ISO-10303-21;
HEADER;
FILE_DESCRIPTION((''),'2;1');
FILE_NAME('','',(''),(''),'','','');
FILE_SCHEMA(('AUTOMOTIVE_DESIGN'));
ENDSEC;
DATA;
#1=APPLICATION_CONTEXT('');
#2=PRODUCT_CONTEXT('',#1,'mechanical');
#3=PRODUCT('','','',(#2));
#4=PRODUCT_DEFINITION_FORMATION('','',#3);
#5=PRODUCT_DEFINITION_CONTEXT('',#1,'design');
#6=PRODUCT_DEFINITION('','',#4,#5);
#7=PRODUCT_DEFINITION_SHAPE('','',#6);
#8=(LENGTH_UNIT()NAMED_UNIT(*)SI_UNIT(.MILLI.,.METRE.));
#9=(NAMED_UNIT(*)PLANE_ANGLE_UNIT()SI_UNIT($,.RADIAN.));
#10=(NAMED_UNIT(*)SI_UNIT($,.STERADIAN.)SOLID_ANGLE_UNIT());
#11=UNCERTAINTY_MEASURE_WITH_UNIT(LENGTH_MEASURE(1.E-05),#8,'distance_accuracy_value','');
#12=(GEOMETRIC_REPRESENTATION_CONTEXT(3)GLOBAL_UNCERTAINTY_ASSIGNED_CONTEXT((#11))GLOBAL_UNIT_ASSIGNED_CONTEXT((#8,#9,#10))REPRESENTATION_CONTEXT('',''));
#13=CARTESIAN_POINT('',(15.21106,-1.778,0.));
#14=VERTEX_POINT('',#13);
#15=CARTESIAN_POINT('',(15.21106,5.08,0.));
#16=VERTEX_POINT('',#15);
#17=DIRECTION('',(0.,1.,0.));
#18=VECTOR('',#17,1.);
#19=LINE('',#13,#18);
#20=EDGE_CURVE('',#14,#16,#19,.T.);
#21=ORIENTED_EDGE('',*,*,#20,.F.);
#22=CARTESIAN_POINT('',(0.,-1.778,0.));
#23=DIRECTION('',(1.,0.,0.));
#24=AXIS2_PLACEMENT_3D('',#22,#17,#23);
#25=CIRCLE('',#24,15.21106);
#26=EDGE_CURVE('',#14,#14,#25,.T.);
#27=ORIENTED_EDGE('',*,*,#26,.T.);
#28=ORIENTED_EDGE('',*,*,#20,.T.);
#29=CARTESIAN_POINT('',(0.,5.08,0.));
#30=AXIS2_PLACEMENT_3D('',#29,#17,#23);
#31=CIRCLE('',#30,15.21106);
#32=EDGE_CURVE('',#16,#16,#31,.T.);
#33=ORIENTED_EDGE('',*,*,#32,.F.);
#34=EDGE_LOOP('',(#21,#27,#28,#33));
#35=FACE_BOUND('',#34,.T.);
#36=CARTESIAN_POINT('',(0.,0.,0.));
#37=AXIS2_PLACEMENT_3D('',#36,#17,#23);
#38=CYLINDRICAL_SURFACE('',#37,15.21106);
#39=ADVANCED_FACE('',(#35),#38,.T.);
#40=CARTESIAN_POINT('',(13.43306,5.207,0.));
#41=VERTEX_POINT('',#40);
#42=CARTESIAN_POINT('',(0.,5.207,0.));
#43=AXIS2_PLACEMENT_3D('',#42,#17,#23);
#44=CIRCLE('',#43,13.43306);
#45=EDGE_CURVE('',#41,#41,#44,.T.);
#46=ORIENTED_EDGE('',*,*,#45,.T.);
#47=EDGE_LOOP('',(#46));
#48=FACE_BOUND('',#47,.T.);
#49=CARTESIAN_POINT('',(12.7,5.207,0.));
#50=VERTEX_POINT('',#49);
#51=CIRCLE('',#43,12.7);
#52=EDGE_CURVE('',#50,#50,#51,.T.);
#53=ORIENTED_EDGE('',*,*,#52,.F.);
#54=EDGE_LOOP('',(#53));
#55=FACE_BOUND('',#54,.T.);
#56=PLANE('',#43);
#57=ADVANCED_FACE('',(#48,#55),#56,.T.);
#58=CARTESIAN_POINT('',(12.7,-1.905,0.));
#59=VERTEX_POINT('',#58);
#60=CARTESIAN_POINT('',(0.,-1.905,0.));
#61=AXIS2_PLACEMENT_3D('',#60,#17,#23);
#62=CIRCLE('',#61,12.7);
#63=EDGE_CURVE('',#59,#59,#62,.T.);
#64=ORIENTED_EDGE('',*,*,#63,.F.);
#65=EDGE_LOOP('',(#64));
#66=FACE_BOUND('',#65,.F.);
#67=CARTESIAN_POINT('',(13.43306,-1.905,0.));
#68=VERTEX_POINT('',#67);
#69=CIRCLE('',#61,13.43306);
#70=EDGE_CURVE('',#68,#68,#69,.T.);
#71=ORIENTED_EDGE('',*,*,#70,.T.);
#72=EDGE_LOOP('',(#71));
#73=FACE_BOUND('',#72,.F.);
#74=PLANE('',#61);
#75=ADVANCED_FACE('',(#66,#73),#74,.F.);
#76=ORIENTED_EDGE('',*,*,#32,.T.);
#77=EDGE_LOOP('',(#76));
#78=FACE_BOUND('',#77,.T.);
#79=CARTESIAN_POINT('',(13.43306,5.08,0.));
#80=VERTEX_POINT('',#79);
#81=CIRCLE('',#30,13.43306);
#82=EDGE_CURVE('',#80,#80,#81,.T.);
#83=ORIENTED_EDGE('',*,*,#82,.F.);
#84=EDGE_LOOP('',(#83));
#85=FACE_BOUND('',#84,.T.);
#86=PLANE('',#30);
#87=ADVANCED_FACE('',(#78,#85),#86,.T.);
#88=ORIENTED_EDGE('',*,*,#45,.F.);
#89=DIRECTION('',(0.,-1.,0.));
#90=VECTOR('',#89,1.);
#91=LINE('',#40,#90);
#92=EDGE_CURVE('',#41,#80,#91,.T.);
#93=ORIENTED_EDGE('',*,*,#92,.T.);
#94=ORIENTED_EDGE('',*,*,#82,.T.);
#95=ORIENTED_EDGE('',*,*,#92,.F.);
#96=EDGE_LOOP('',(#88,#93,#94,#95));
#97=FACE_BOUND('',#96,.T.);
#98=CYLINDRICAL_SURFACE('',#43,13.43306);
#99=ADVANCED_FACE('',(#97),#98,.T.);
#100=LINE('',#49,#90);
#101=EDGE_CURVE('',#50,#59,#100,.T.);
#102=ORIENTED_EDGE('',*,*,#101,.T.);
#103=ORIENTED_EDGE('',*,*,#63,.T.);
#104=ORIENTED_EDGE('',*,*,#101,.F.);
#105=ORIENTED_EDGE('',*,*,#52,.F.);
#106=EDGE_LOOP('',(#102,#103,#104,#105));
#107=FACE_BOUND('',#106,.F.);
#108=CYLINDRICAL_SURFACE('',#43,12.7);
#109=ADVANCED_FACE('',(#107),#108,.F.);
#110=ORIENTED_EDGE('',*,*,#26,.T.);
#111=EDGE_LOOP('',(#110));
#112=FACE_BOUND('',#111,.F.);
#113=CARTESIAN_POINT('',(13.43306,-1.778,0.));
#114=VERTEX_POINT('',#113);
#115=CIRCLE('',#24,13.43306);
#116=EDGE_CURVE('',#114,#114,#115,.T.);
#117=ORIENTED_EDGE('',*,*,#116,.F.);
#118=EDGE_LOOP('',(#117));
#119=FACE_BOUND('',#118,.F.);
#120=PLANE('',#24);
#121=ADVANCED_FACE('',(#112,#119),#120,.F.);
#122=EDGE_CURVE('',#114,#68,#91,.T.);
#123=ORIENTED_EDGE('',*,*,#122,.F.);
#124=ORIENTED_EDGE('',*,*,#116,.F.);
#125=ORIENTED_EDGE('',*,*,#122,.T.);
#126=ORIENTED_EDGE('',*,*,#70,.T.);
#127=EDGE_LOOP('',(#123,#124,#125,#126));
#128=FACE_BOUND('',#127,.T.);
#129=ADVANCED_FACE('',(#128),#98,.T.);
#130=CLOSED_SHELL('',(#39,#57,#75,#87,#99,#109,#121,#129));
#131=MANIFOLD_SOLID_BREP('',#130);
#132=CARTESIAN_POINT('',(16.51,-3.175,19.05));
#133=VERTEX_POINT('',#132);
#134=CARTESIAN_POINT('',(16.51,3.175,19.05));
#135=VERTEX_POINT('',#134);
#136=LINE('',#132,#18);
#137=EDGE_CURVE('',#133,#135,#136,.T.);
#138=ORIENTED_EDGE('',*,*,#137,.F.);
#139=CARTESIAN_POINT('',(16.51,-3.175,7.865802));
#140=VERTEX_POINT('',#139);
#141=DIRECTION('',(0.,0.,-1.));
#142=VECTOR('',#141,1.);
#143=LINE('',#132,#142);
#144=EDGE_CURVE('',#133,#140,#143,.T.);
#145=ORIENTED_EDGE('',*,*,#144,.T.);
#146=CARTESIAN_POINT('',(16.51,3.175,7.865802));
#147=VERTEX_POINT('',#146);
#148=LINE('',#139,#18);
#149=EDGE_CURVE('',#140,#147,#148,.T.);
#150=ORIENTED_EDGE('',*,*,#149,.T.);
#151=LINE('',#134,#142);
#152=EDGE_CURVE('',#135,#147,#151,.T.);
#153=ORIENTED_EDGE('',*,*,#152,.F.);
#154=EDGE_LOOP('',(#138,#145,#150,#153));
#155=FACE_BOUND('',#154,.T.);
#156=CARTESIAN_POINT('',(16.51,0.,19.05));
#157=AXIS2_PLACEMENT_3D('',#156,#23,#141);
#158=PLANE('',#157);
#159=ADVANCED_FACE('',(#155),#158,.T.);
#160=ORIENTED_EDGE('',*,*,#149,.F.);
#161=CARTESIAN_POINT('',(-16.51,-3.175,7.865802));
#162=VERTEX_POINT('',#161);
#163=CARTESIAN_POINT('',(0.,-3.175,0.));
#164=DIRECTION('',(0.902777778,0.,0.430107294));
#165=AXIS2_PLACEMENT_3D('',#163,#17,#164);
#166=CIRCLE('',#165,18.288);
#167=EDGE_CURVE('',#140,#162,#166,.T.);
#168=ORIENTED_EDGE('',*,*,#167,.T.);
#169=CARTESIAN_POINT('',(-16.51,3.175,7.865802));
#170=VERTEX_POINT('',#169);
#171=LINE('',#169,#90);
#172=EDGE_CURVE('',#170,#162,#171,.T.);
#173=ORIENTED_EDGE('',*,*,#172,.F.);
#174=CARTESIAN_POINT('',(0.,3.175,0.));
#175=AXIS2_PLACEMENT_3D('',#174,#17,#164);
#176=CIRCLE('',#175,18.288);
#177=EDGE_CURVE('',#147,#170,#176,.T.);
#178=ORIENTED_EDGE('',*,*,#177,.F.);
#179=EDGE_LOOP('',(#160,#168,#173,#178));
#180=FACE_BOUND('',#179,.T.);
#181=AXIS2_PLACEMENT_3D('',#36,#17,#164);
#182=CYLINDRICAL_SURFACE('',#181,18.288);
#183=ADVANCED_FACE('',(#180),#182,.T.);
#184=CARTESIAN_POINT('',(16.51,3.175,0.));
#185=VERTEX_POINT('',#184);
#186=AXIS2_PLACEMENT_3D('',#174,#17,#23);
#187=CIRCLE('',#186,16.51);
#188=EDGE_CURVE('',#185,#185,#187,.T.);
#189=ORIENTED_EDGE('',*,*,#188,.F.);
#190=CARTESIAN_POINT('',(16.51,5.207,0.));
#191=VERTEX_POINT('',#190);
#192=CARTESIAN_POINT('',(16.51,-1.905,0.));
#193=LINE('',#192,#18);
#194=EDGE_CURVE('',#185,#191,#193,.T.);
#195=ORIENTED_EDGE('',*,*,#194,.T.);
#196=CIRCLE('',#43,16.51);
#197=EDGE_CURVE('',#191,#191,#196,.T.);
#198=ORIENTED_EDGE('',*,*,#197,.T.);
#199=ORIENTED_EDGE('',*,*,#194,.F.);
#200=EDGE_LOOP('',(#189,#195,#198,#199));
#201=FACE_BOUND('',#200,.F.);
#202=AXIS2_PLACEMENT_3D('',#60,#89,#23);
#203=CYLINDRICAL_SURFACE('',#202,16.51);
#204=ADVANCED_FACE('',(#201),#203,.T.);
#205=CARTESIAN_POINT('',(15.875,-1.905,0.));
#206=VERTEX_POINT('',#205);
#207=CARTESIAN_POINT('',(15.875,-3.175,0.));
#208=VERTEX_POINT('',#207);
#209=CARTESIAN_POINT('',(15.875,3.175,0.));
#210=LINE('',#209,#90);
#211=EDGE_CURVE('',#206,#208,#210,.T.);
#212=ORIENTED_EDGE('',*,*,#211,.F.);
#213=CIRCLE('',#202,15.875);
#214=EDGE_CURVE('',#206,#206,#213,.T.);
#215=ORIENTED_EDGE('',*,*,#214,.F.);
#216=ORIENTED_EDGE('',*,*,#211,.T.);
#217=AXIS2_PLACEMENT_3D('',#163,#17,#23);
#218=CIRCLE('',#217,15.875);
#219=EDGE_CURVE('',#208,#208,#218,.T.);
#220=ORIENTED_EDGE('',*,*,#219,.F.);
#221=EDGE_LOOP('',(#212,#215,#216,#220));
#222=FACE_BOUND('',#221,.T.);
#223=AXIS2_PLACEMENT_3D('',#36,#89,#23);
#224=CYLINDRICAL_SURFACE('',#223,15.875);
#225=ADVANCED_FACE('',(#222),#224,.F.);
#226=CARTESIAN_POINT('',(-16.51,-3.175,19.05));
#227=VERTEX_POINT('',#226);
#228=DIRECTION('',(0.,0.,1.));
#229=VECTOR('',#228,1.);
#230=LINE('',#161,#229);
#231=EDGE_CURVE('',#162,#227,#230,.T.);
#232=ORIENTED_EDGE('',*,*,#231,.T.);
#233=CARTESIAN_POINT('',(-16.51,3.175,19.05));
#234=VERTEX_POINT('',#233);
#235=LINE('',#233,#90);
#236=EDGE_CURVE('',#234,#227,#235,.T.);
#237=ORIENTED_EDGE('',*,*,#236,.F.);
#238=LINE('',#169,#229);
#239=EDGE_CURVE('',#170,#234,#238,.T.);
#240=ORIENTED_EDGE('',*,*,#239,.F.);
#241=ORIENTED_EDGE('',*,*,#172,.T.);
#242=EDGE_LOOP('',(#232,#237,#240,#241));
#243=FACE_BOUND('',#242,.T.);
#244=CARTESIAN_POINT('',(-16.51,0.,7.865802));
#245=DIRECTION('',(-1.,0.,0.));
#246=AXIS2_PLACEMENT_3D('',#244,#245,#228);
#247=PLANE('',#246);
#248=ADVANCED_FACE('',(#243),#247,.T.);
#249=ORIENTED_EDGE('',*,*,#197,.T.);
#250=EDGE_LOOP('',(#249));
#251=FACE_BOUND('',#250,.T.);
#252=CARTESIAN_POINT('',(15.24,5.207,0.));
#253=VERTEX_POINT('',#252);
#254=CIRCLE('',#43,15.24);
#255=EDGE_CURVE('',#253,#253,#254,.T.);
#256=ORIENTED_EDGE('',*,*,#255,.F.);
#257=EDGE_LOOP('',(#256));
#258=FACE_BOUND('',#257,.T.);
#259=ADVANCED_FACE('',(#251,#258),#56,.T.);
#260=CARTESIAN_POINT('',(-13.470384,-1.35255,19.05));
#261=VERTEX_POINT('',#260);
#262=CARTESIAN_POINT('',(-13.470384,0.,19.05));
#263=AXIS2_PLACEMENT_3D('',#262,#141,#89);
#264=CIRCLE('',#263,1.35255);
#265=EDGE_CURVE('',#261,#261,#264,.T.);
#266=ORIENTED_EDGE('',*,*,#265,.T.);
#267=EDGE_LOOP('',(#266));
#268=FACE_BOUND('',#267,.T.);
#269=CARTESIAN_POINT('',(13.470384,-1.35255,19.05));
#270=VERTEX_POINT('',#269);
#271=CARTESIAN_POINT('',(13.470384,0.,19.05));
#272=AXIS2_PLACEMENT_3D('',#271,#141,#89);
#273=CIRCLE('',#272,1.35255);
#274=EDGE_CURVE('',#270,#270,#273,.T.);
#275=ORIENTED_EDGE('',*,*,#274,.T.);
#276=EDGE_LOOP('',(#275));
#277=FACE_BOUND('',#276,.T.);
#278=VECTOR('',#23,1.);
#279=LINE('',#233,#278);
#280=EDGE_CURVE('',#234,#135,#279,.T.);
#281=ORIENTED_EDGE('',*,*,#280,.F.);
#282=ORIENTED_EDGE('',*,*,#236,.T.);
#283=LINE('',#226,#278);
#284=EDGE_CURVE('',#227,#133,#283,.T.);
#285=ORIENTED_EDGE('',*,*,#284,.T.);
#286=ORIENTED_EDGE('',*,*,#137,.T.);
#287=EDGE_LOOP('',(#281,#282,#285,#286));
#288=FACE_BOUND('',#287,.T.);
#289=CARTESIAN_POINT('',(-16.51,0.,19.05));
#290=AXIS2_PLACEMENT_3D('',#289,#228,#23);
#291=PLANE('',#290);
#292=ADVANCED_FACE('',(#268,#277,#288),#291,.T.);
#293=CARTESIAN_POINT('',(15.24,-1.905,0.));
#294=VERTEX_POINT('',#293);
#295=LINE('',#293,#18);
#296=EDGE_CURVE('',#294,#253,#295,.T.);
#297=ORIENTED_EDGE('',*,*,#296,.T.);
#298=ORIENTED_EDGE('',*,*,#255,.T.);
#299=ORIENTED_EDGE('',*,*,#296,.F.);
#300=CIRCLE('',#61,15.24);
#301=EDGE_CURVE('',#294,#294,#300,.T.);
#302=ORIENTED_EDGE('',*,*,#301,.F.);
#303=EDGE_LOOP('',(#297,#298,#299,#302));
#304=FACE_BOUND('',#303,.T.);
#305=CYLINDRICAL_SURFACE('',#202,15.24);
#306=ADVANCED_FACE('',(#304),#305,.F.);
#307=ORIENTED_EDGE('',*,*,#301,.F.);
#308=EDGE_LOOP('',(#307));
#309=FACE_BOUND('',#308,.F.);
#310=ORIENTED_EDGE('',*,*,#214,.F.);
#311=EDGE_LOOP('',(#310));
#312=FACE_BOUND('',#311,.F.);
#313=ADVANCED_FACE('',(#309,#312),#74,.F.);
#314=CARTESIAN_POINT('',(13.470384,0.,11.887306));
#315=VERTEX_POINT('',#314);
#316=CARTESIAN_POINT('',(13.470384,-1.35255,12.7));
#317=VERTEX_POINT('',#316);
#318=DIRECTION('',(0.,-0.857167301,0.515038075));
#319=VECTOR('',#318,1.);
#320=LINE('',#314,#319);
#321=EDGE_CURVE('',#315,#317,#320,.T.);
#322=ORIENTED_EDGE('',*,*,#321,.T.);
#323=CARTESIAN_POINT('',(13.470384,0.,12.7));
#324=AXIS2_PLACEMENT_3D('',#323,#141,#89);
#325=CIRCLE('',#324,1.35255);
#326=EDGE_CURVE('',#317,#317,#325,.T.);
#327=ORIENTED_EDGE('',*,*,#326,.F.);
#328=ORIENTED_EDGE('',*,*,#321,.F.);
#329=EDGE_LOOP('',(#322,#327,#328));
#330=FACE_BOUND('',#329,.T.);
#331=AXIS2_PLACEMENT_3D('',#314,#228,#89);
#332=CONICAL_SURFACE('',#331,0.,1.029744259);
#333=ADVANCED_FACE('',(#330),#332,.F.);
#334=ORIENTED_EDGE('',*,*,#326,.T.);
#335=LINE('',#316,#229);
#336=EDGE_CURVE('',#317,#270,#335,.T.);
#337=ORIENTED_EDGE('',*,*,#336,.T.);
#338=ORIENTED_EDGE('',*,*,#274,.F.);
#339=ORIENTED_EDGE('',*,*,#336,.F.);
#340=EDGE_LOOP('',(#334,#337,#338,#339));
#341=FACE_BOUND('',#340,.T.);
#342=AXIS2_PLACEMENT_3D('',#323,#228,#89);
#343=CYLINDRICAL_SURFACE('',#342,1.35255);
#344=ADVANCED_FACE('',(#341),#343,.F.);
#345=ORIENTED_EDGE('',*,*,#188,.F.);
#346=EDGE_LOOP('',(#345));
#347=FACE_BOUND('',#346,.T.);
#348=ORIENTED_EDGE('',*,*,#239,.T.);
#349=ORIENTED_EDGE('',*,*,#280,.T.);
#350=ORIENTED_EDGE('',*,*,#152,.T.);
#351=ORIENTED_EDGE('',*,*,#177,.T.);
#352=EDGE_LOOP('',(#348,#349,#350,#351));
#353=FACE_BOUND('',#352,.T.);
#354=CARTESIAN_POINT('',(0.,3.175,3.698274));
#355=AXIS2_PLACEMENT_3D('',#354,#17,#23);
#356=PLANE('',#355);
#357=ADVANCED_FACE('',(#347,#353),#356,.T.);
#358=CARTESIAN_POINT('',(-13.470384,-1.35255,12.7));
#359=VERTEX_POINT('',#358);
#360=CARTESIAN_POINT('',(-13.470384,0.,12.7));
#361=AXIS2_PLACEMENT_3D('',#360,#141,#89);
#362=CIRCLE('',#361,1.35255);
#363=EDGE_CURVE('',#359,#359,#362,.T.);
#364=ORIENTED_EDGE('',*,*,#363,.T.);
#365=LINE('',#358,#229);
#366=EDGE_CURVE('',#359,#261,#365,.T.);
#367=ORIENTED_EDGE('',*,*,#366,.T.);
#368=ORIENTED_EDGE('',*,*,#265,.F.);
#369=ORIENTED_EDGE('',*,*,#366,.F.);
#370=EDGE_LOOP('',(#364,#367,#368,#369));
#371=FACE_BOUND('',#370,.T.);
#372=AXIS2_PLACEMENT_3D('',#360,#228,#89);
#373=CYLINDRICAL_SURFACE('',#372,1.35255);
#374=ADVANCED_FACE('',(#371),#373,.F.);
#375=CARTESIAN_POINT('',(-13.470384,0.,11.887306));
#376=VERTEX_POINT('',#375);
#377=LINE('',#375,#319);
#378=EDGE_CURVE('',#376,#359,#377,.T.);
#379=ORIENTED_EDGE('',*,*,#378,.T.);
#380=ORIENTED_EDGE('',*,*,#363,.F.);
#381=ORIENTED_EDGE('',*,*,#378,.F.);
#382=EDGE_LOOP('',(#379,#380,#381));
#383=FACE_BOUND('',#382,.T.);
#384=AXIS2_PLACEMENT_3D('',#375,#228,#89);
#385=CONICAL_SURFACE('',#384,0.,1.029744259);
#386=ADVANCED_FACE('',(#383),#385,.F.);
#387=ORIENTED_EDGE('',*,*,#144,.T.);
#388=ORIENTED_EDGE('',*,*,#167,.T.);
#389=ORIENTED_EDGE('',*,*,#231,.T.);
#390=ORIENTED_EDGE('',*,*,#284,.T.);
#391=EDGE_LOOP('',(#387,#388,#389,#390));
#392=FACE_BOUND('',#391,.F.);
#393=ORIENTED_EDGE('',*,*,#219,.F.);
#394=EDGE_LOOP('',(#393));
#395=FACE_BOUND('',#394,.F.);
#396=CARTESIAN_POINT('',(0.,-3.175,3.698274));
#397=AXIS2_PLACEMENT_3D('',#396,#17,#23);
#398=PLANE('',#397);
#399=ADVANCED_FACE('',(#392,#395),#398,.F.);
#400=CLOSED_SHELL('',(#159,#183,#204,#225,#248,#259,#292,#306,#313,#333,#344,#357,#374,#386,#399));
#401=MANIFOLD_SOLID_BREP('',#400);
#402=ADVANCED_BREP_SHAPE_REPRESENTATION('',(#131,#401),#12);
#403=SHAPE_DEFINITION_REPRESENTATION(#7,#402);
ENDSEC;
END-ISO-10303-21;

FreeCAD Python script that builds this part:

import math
import FreeCAD as App
import Part
import Sketcher

V = App.Vector
Q = App.Units.Quantity

doc = App.newDocument("Part")
body = doc.addObject("PartDesign::Body", "Body")

# Sketch on XZ plane
sketch1 = body.newObject("Sketcher::SketchObject", "Sketch")
sketch1.AttachmentSupport = (doc.getObject("XZ_Plane"), [""])
sketch1.MapMode = "FlatFace"
sketch1.addGeometry([
    Part.LineSegment(V(-17, 19, 0), V(17, 19, 0)),  # 0
    Part.LineSegment(V(17, 19, 0), V(17, 8, 0)),  # 1
    Part.ArcOfCircle(Part.Circle(V(0, 0, 0), V(0, 0, 1), 18), math.radians(155), math.radians(385)),  # 2
    Part.LineSegment(V(-17, 8, 0), V(-17, 19, 0)),  # 3
    Part.Circle(V(0, 0, 0), V(0, 0, 1), 16),  # 4
], False)
sketch1.addConstraint([
    Sketcher.Constraint("Coincident", 0, 2, 1, 1),
    Sketcher.Constraint("Coincident", 1, 2, 2, 2),
    Sketcher.Constraint("Coincident", 2, 1, 3, 1),
    Sketcher.Constraint("Coincident", 3, 2, 0, 1),
    Sketcher.Constraint("Horizontal", 0),
    Sketcher.Constraint("Vertical", 1),
    Sketcher.Constraint("Vertical", 3),
    Sketcher.Constraint("Coincident", 2, 3, -1, 1),
    Sketcher.Constraint("Coincident", 4, 3, -1, 1),
    Sketcher.Constraint("Horizontal", 1, 2, 2, 1),
    Sketcher.Constraint("Diameter", 4, Q("1.25 in")),
    Sketcher.Constraint("Radius", 2, Q("0.72 in")),
    Sketcher.Constraint("DistanceX", 0, 1, 0, 2, Q("1.3 in")),
    Sketcher.Constraint("DistanceY", -1, 1, 0, 2, Q("0.75 in")),
])
pad1 = body.newObject("PartDesign::Pad", "Pad")
pad1.Profile = sketch1
pad1.Length = Q("0.25 in")
pad1.Midplane = True

# Sketch on XZ plane
sketch2 = body.newObject("Sketcher::SketchObject", "Sketch001")
sketch2.AttachmentSupport = (doc.getObject("XZ_Plane"), [""])
sketch2.MapMode = "FlatFace"
sketch2.AttachmentOffset = App.Placement(V(0, 0, -0.125 * 25.4), App.Rotation())
sketch2.addGeometry(Part.Circle(V(0, 0, 0), V(0, 0, 1), 17), False)
sketch2.addConstraint([
    Sketcher.Constraint("Coincident", 0, 3, -1, 1),
    Sketcher.Constraint("Diameter", 0, Q("1.3 in")),
])
pocket1 = body.newObject("PartDesign::Pocket", "Pocket")
pocket1.Profile = sketch2
pocket1.Length = Q("0.2 in")
pocket1.Reversed = True

# Sketch on XZ plane
sketch3 = body.newObject("Sketcher::SketchObject", "Sketch002")
sketch3.AttachmentSupport = (doc.getObject("XZ_Plane"), [""])
sketch3.MapMode = "FlatFace"
sketch3.AttachmentOffset = App.Placement(V(0, 0, 0.075 * 25.4), App.Rotation())
sketch3.addGeometry([
    Part.Circle(V(0, 0, 0), V(0, 0, 1), 17),
    Part.Circle(V(0, 0, 0), V(0, 0, 1), 15),
], False)
sketch3.addConstraint([
    Sketcher.Constraint("Coincident", 0, 3, -1, 1),
    Sketcher.Constraint("Coincident", 1, 3, -1, 1),
    Sketcher.Constraint("Diameter", 0, Q("1.3 in")),
    Sketcher.Constraint("Diameter", 1, Q("1.2 in")),
])
pad2 = body.newObject("PartDesign::Pad", "Pad001")
pad2.Profile = sketch3
pad2.Length = Q("0.28 in")
pad2.Reversed = True

# Sketch on YZ plane
sketch4 = body.newObject("Sketcher::SketchObject", "Sketch003")
sketch4.AttachmentSupport = (doc.getObject("YZ_Plane"), [""])
sketch4.MapMode = "FlatFace"
sketch4.AttachmentOffset = App.Placement(V(0, 0, 13.470384), App.Rotation())
sketch4.addGeometry([
    Part.LineSegment(V(0, 11.9, 0), V(0, 19.1, 0)),
    Part.LineSegment(V(0, 19.1, 0), V(-1.4, 19.1, 0)),
    Part.LineSegment(V(-1.4, 19.1, 0), V(-1.4, 12.7, 0)),
    Part.LineSegment(V(-1.4, 12.7, 0), V(0, 11.9, 0)),
], False)
sketch4.addConstraint([
    Sketcher.Constraint("Coincident", 0, 2, 1, 1),
    Sketcher.Constraint("Coincident", 1, 2, 2, 1),
    Sketcher.Constraint("Coincident", 2, 2, 3, 1),
    Sketcher.Constraint("Coincident", 3, 2, 0, 1),
    Sketcher.Constraint("Vertical", 0),
    Sketcher.Constraint("Horizontal", 1),
    Sketcher.Constraint("Vertical", 2),
    Sketcher.Constraint("PointOnObject", 0, 2, -2),
    Sketcher.Constraint("Angle", 3, Q("-31 deg")),
    Sketcher.Constraint("DistanceY", 2, 2, 2, 1, Q("0.25 in")),
    Sketcher.Constraint("DistanceY", -1, 1, 2, 2, Q("0.5 in")),
    Sketcher.Constraint("DistanceX", 1, 2, 1, 1, 1.35255),
])
groove = body.newObject("PartDesign::Groove", "Groove")
groove.Profile = sketch4
groove.ReferenceAxis = (sketch4, ["V_Axis"])
groove.Angle = 360
doc.recompute()

linearpattern = body.newObject("PartDesign::LinearPattern", "LinearPattern")
linearpattern.Originals = [groove]
linearpattern.Direction = (doc.getObject("X_Axis"), [""])
linearpattern.Mode = "offset"
linearpattern.Offset = 26.940768
linearpattern.Occurrences = 2
linearpattern.Reversed = True
body.Tip = linearpattern
body2 = doc.addObject("PartDesign::Body", "Body001")

# Sketch on XZ plane
sketch5 = body2.newObject("Sketcher::SketchObject", "Sketch004")
sketch5.AttachmentSupport = (doc.getObject("XZ_Plane001"), [""])
sketch5.MapMode = "FlatFace"
sketch5.addGeometry([
    Part.Circle(V(0, 0, 0), V(0, 0, 1), 15),
    Part.Circle(V(0, 0, 0), V(0, 0, 1), 13),
], False)
sketch5.addConstraint([
    Sketcher.Constraint("Coincident", 0, 3, -1, 1),
    Sketcher.Constraint("Coincident", 1, 3, -1, 1),
    Sketcher.Constraint("Diameter", 0, 30.422119),
    Sketcher.Constraint("Diameter", 1, 26.866119),
])
pad3 = body2.newObject("PartDesign::Pad", "Pad002")
pad3.Profile = sketch5
pad3.Type = "TwoLengths"
pad3.Length = Q("0.2 in")
pad3.Length2 = Q("0.07 in")
pad3.Reversed = True

# Sketch on XZ plane
sketch6 = body2.newObject("Sketcher::SketchObject", "Sketch005")
sketch6.AttachmentSupport = (doc.getObject("XZ_Plane001"), [""])
sketch6.MapMode = "FlatFace"
sketch6.AttachmentOffset = App.Placement(V(0, 0, -0.205 * 25.4), App.Rotation())
sketch6.addGeometry([
    Part.Circle(V(0, 0, 0), V(0, 0, 1), 13),
    Part.Circle(V(0, 0, 0), V(0, 0, 1), 13),
], False)
sketch6.addConstraint([
    Sketcher.Constraint("Coincident", 0, 3, -1, 1),
    Sketcher.Constraint("Coincident", 1, 3, -1, 1),
    Sketcher.Constraint("Diameter", 1, Q("1 in")),
    Sketcher.Constraint("Diameter", 0, 26.866119),
])
pad4 = body2.newObject("PartDesign::Pad", "Pad003")
pad4.Profile = sketch6
pad4.Length = Q("0.28 in")

doc.recompute()
